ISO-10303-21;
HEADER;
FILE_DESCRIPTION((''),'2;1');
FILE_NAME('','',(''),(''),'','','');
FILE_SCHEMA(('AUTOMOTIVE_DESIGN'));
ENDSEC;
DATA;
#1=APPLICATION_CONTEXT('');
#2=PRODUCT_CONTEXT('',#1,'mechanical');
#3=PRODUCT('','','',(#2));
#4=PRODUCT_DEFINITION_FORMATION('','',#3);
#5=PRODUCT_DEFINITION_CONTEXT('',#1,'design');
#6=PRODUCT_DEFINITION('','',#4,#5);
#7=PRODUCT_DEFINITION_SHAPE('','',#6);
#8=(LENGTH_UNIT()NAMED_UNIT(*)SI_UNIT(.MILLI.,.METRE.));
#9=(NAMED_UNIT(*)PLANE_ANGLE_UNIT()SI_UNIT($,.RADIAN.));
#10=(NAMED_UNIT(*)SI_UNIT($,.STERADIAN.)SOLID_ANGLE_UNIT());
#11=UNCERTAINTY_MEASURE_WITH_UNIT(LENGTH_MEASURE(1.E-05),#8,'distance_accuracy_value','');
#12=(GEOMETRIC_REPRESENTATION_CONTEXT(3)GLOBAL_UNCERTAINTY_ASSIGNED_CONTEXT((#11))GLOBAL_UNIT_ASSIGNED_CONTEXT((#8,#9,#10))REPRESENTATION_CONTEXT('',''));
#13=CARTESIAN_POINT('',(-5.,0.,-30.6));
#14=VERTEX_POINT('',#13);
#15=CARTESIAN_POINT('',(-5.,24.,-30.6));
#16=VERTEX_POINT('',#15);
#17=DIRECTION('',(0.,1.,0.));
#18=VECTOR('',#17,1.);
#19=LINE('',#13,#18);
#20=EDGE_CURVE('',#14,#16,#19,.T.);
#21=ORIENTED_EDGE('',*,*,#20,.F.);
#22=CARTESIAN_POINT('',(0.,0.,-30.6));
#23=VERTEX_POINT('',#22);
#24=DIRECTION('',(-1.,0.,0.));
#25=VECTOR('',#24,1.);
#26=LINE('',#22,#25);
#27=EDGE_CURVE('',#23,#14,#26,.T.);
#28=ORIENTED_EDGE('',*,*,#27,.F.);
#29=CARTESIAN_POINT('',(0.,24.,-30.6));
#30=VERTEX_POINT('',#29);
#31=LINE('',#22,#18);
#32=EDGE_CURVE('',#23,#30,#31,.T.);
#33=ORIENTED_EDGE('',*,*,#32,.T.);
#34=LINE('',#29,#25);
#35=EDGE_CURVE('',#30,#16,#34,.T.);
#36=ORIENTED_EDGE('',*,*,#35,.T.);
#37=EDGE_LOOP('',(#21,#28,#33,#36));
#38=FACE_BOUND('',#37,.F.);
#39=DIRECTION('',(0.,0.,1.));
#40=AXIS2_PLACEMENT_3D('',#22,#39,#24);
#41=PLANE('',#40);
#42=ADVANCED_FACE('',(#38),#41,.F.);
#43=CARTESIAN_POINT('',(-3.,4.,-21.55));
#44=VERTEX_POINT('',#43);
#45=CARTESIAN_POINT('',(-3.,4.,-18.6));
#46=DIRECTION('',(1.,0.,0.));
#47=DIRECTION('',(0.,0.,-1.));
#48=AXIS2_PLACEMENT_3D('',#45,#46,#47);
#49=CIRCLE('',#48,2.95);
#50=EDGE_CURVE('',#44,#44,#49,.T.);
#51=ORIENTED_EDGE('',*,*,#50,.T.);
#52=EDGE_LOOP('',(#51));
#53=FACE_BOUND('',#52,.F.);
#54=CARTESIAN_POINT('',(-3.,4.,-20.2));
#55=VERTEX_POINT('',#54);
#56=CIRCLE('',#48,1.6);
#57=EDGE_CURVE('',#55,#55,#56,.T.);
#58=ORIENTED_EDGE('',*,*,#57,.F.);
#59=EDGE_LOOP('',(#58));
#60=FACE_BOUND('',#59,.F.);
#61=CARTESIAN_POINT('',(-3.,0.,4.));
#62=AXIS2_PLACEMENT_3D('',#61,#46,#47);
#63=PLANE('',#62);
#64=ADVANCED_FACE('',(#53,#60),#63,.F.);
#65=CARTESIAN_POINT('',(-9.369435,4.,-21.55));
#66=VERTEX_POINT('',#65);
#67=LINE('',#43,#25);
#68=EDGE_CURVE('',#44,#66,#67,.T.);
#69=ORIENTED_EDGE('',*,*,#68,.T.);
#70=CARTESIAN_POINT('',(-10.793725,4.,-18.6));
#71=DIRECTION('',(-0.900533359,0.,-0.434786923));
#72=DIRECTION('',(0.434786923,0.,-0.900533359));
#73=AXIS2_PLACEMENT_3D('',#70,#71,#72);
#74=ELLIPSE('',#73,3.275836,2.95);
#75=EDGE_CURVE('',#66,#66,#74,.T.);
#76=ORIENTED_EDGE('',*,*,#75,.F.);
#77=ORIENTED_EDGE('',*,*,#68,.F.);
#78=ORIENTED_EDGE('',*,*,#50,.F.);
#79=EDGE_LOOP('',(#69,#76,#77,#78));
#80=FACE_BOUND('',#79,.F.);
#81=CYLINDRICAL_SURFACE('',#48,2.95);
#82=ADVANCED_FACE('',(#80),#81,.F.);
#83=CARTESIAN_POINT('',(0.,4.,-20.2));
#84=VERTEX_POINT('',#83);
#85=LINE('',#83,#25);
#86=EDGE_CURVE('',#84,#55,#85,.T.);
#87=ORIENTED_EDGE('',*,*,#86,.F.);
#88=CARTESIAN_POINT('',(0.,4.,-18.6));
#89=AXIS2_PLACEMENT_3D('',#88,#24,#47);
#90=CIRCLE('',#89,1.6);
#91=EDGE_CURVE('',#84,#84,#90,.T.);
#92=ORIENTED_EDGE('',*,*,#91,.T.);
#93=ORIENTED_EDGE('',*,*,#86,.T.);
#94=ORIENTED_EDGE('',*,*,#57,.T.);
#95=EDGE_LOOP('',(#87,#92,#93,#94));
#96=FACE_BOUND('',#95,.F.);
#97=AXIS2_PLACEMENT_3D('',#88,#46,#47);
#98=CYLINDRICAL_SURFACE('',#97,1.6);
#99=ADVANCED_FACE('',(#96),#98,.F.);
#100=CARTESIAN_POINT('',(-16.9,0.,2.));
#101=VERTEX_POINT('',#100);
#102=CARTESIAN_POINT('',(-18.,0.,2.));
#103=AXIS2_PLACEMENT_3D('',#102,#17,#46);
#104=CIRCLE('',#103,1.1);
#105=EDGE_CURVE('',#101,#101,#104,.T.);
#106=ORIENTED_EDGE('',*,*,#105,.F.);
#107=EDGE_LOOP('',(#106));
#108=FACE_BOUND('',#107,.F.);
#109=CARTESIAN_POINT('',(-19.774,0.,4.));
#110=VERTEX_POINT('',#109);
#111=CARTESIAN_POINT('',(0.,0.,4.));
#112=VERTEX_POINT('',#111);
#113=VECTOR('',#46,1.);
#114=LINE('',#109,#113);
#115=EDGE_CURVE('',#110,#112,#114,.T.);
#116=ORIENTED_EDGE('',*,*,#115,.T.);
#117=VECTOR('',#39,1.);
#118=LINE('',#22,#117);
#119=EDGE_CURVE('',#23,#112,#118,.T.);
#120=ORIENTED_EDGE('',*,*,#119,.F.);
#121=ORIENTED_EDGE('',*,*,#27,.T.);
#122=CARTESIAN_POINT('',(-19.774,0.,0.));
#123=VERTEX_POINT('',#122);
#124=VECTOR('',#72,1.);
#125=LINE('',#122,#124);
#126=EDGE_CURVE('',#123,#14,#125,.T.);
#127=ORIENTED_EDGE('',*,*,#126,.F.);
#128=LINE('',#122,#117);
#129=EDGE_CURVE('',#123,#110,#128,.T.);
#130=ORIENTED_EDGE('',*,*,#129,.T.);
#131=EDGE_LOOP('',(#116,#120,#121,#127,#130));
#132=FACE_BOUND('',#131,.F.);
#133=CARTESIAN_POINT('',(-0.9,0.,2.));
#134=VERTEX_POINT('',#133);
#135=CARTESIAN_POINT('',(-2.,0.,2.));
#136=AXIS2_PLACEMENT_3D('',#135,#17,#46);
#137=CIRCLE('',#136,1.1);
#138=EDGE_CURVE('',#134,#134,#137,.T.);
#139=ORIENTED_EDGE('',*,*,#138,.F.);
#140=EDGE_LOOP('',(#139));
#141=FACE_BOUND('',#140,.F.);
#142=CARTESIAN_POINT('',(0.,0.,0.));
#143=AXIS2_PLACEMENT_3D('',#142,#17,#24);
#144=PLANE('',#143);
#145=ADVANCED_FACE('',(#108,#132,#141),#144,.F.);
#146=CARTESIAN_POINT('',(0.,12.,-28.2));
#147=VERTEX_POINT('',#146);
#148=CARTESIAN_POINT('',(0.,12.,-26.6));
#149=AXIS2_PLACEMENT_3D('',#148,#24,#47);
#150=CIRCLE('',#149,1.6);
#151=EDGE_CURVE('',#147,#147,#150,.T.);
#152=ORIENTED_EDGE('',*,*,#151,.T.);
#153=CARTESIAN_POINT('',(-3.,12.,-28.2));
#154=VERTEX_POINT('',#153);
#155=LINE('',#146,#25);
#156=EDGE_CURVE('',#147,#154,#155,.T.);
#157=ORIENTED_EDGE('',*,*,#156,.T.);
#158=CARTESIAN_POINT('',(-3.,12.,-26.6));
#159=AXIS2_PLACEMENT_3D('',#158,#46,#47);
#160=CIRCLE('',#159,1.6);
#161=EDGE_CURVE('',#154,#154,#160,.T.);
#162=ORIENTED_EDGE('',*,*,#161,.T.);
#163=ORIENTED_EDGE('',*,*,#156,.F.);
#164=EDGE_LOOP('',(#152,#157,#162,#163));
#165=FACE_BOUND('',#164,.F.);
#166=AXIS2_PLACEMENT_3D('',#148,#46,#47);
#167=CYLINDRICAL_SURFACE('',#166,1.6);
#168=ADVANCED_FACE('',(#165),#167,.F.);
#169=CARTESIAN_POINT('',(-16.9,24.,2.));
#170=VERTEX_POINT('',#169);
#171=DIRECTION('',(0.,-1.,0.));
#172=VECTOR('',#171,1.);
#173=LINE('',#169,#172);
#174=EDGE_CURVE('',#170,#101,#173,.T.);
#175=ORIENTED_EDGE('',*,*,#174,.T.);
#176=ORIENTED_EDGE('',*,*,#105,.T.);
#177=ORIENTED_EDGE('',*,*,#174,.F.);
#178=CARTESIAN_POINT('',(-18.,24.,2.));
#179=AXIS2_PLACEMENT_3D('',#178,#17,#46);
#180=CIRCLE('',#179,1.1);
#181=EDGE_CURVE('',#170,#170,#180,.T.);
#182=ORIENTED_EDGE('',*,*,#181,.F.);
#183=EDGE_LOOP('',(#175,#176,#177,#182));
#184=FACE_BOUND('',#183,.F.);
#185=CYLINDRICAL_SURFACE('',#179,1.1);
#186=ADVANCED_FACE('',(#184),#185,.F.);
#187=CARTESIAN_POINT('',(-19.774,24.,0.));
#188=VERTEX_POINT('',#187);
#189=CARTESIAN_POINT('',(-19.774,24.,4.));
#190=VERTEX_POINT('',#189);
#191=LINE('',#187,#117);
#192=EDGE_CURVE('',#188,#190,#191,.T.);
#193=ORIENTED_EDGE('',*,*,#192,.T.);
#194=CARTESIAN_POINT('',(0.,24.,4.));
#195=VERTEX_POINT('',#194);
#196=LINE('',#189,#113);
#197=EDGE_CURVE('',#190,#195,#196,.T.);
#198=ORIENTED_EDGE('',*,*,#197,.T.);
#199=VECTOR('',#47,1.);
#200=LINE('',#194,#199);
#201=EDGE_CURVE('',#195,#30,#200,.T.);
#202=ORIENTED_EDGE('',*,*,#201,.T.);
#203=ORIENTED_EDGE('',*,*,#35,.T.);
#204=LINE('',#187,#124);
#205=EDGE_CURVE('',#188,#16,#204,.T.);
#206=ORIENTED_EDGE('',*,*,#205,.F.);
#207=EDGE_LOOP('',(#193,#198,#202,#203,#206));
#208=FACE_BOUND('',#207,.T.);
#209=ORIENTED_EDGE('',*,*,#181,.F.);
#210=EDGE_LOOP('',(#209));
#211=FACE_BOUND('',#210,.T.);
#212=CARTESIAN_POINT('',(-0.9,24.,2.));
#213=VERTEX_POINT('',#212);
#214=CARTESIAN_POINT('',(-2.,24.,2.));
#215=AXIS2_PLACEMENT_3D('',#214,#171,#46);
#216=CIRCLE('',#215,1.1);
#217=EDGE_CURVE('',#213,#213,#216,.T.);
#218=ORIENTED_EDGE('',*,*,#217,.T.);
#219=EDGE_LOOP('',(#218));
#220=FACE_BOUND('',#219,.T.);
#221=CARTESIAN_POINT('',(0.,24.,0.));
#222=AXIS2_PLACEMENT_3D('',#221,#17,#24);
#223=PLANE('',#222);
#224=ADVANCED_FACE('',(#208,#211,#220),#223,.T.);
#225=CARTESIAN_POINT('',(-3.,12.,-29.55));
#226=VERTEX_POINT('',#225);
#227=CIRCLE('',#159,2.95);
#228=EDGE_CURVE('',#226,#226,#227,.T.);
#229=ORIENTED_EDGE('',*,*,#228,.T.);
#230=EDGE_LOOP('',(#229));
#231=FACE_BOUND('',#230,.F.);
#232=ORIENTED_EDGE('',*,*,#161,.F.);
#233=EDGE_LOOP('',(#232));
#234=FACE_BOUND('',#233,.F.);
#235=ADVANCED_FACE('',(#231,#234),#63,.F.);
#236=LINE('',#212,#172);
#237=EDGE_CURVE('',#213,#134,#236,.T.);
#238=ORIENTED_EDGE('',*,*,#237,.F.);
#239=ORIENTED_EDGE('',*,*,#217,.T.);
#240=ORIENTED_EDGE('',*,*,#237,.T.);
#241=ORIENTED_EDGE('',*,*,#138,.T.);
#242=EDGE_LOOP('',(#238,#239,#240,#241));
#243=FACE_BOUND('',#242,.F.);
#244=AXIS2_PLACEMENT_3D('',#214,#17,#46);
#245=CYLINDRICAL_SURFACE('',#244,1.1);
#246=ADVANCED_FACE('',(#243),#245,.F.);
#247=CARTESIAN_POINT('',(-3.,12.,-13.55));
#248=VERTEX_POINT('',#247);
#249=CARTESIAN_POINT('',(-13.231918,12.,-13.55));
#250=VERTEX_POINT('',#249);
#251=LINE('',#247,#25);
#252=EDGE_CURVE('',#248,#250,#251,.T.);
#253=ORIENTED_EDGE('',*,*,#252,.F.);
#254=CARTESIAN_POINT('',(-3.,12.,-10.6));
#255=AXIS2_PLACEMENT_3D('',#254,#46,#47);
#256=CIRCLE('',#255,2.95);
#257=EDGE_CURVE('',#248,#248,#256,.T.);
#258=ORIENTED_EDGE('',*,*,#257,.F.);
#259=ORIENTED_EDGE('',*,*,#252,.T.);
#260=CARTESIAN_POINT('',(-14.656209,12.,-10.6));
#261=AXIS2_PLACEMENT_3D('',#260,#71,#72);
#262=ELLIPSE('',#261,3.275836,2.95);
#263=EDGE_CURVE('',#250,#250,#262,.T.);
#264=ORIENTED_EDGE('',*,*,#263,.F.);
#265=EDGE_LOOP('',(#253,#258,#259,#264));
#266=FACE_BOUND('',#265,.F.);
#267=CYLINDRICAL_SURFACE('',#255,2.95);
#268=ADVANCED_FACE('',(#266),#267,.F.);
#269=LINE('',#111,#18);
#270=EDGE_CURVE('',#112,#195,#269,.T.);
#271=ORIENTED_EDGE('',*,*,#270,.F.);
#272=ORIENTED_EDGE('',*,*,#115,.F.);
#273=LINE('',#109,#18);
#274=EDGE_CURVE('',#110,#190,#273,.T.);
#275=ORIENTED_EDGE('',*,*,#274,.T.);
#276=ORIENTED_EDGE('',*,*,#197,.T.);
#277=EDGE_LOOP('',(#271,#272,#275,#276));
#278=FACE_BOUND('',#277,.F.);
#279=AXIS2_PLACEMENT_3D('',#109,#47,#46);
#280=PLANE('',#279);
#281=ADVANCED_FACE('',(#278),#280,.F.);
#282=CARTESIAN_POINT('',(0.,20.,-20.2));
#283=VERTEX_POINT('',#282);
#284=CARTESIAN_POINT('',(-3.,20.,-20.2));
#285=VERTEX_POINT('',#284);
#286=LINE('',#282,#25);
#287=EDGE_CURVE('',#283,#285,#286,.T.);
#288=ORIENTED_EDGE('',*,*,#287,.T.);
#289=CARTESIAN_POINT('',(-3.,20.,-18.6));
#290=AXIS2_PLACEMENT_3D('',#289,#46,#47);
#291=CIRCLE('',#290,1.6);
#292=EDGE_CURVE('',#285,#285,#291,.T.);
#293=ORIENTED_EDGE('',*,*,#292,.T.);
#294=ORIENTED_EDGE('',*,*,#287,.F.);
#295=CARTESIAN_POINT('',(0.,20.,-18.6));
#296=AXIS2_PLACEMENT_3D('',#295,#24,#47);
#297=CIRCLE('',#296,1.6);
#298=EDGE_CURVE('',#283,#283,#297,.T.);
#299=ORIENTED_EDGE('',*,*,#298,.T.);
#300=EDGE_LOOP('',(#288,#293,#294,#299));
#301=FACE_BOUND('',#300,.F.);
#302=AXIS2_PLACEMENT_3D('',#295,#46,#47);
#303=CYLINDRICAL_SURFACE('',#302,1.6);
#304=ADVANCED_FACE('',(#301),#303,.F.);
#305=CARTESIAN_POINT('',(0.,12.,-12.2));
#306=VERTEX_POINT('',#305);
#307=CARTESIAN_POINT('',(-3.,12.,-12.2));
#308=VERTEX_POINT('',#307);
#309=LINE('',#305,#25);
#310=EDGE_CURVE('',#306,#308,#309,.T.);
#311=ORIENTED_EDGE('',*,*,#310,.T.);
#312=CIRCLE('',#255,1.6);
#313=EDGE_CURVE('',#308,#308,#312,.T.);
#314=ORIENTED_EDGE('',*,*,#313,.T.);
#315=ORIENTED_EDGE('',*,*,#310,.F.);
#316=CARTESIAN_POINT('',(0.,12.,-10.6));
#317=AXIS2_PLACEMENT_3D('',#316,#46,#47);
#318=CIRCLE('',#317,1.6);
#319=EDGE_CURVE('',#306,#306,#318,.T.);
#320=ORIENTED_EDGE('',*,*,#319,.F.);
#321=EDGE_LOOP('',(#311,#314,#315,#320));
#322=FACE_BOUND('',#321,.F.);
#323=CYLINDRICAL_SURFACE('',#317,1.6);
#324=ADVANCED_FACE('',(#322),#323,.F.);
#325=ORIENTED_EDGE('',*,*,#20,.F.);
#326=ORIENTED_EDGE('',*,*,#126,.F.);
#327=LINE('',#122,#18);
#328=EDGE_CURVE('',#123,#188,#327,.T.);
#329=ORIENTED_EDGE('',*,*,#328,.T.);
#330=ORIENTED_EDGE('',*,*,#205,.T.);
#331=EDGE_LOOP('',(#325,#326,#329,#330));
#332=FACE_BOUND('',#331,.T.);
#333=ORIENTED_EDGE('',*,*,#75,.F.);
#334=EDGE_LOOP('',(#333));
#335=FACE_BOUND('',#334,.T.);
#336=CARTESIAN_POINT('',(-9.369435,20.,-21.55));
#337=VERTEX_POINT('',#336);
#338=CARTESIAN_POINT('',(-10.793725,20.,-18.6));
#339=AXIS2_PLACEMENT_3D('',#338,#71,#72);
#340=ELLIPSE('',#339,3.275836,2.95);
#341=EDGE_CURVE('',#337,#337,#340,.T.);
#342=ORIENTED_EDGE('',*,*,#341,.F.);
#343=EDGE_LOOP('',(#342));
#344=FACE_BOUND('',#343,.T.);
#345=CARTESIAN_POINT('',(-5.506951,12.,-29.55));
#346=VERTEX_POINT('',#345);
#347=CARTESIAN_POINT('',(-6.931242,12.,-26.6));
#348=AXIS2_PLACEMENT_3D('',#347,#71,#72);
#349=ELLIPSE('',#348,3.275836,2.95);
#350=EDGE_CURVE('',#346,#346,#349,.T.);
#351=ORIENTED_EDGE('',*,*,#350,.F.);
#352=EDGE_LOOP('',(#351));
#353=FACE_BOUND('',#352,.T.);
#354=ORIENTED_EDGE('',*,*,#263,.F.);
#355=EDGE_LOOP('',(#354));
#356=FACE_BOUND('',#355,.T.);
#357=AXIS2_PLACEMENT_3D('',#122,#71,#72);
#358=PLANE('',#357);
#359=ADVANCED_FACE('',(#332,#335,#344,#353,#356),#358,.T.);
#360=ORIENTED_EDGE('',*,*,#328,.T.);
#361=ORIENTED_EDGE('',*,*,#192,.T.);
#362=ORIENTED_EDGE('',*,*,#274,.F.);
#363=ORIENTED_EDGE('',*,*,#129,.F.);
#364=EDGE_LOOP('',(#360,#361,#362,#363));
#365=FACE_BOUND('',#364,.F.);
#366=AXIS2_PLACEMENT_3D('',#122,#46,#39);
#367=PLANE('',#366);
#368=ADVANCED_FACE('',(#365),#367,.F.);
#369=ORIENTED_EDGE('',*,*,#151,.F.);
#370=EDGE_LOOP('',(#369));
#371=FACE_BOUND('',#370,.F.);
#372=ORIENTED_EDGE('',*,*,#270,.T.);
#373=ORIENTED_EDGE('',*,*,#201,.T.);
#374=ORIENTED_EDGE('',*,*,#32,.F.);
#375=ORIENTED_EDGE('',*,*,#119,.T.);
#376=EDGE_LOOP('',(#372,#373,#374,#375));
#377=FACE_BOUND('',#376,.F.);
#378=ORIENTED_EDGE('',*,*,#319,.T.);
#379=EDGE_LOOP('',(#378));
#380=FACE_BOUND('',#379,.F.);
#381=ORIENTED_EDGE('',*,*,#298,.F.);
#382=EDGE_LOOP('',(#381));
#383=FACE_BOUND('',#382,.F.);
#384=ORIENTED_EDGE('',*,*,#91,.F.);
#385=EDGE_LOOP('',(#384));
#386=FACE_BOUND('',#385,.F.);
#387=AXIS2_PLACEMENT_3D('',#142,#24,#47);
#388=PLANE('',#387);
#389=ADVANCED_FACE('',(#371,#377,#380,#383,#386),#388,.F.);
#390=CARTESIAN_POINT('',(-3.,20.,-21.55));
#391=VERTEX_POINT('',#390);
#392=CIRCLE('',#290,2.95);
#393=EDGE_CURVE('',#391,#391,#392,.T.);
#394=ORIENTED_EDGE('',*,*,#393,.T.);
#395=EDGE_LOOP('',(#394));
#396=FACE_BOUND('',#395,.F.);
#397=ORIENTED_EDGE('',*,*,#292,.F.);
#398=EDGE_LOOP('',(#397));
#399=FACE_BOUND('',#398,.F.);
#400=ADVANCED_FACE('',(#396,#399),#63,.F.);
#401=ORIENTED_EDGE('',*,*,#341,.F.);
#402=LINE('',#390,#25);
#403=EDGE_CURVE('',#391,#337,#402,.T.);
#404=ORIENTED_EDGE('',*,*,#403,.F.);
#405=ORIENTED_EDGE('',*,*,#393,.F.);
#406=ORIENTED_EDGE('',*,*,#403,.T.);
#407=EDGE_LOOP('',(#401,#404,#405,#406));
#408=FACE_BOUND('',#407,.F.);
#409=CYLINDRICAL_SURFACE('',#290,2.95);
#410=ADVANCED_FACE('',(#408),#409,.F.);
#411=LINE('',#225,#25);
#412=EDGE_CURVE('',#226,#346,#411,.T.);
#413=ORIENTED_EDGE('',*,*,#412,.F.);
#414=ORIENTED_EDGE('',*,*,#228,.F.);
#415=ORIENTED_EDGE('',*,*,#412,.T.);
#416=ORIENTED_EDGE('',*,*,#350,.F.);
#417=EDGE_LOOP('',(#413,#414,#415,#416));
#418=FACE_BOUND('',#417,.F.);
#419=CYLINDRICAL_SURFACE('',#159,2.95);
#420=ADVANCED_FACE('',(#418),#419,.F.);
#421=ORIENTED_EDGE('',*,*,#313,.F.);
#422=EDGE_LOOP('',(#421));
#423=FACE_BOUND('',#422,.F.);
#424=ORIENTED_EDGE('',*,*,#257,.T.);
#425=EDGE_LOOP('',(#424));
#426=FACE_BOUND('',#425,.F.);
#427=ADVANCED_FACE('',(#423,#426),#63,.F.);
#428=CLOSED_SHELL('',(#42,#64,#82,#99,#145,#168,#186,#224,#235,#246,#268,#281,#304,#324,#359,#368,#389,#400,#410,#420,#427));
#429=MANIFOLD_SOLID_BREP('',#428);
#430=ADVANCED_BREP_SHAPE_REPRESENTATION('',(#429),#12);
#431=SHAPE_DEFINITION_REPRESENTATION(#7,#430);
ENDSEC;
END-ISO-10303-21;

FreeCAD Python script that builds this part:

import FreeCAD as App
import Part
import Sketcher
Q = App.Units.Quantity


def add_polygon(sketch, points):
    """Adds a closed chain of lines whose ends are joined by coincident constraints."""
    first, n = sketch.GeometryCount, len(points)
    for a, b in zip(points, points[1:] + points[:1]):
        sketch.addGeometry(Part.LineSegment(App.Vector(*a, 0), App.Vector(*b, 0)), False)
    for i in range(n):
        sketch.addConstraint(Sketcher.Constraint("Coincident", first + i, 2, first + (i + 1) % n, 1))

doc = App.newDocument("Part")
body = doc.addObject("PartDesign::Body", "Body")

# Sketch on XZ plane
sketch1 = body.newObject("Sketcher::SketchObject", "Sketch")
sketch1.AttachmentSupport = (doc.getObject("XZ_Plane"), [""])
sketch1.MapMode = "FlatFace"
add_polygon(sketch1, [(-5, -30.6), (-19.774, 0), (-19.774, 4), (0, 4), (0, -30.6)])  # lines 0-4
sketch1.addConstraint([
    Sketcher.Constraint("Vertical", 1),
    Sketcher.Constraint("Horizontal", 2),
    Sketcher.Constraint("Vertical", 3),
    Sketcher.Constraint("Horizontal", 4),
    Sketcher.Constraint("PointOnObject", 0, 2, -1),
    Sketcher.Constraint("PointOnObject", 2, 2, -2),
    Sketcher.Constraint("DistanceX", 4, 2, 4, 1, Q("5 mm")),
    Sketcher.Constraint("DistanceY", 1, 1, 1, 2, Q("4 mm")),
    Sketcher.Constraint("DistanceY", 3, 2, -1, 1, Q("30.6 mm")),
    Sketcher.Constraint("DistanceX", 2, 1, 2, 2, Q("19.774 mm")),
])
pad1 = body.newObject("PartDesign::Pad", "Pad")
pad1.Profile = sketch1
pad1.Length = 24
pad1.Reversed = True

# Sketch on YZ plane
sketch2 = body.newObject("Sketcher::SketchObject", "Sketch001")
sketch2.AttachmentSupport = (doc.getObject("YZ_Plane"), [""])
sketch2.MapMode = "FlatFace"
sketch2.addGeometry([
    Part.Circle(App.Vector(12, -26.6, 0), App.Vector(0, 0, 1), 1.6),
    Part.Circle(App.Vector(4, -18.6, 0), App.Vector(0, 0, 1), 1.6),
    Part.Circle(App.Vector(12, -10.6, 0), App.Vector(0, 0, 1), 1.6),
    Part.Circle(App.Vector(20, -18.6, 0), App.Vector(0, 0, 1), 1.6),
], False)
sketch2.addConstraint([
    Sketcher.Constraint("Equal", 0, 1),
    Sketcher.Constraint("Equal", 1, 2),
    Sketcher.Constraint("Equal", 2, 3),
    Sketcher.Constraint("Horizontal", 1, 3, 3, 3),
    Sketcher.Constraint("Vertical", 0, 3, 2, 3),
    Sketcher.Constraint("Diameter", 0, Q("3.2 mm")),
    Sketcher.Constraint("DistanceX", -1, 1, 1, 3, Q("4 mm")),
    Sketcher.Constraint("DistanceX", 1, 3, 0, 3, Q("8 mm")),
    Sketcher.Constraint("DistanceY", 0, 3, 1, 3, Q("8 mm")),
    Sketcher.Constraint("DistanceY", 1, 3, 2, 3, Q("8 mm")),
    Sketcher.Constraint("DistanceX", 0, 3, 3, 3, Q("8 mm")),
    Sketcher.Constraint("DistanceY", 0, 3, -1, 1, Q("26.6 mm")),
])
pocket1 = body.newObject("PartDesign::Pocket", "Pocket")
pocket1.Profile = sketch2
pocket1.Length = 24

# Sketch on YZ plane
sketch3 = body.newObject("Sketcher::SketchObject", "Sketch002")
sketch3.AttachmentSupport = (doc.getObject("YZ_Plane"), [""])
sketch3.MapMode = "FlatFace"
sketch3.AttachmentOffset = App.Placement(App.Vector(0, 0, -3), App.Rotation())
sketch3.addGeometry([
    Part.Circle(App.Vector(20, -18.6, 0), App.Vector(0, 0, 1), 2.95),
    Part.Circle(App.Vector(12, -10.6, 0), App.Vector(0, 0, 1), 2.95),
    Part.Circle(App.Vector(4, -18.6, 0), App.Vector(0, 0, 1), 2.95),
    Part.Circle(App.Vector(12, -26.6, 0), App.Vector(0, 0, 1), 2.95),
], False)
sketch3.addConstraint([
    Sketcher.Constraint("Equal", 0, 1),
    Sketcher.Constraint("Equal", 1, 2),
    Sketcher.Constraint("Equal", 2, 3),
    Sketcher.Constraint("Horizontal", 0, 3, 2, 3),
    Sketcher.Constraint("Vertical", 1, 3, 3, 3),
    Sketcher.Constraint("Diameter", 0, Q("5.9 mm")),
    Sketcher.Constraint("DistanceX", -1, 1, 0, 3, Q("20 mm")),
    Sketcher.Constraint("DistanceX", -1, 1, 1, 3, Q("12 mm")),
    Sketcher.Constraint("DistanceX", -1, 1, 2, 3, Q("4 mm")),
    Sketcher.Constraint("DistanceY", 0, 3, 1, 3, Q("8 mm")),
    Sketcher.Constraint("DistanceY", 3, 3, 0, 3, Q("8 mm")),
    Sketcher.Constraint("DistanceY", 0, 3, -1, 1, Q("18.6 mm")),
])
pocket2 = body.newObject("PartDesign::Pocket", "Pocket001")
pocket2.Profile = sketch3
pocket2.Length = 24

# Sketch on XZ plane
sketch4 = body.newObject("Sketcher::SketchObject", "Sketch003")
sketch4.AttachmentSupport = (doc.getObject("XZ_Plane"), [""])
sketch4.MapMode = "FlatFace"
sketch4.AttachmentOffset = App.Placement(App.Vector(0, 0, -24), App.Rotation())
sketch4.addGeometry([
    Part.Circle(App.Vector(-18, 2, 0), App.Vector(0, 0, 1), 1.1),
    Part.Circle(App.Vector(-2, 2, 0), App.Vector(0, 0, 1), 1.1),
], False)
sketch4.addConstraint([
    Sketcher.Constraint("Equal", 0, 1),
    Sketcher.Constraint("Horizontal", 0, 3, 1, 3),
    Sketcher.Constraint("Diameter", 0, Q("2.2 mm")),
    Sketcher.Constraint("DistanceY", -1, 1, 0, 3, Q("2 mm")),
    Sketcher.Constraint("DistanceX", 1, 3, -1, 1, Q("2 mm")),
    Sketcher.Constraint("DistanceX", 0, 3, 1, 3, Q("16 mm")),
])
pocket3 = body.newObject("PartDesign::Pocket", "Pocket002")
pocket3.Profile = sketch4
pocket3.Length = 24
pocket3.Reversed = True

doc.recompute()
